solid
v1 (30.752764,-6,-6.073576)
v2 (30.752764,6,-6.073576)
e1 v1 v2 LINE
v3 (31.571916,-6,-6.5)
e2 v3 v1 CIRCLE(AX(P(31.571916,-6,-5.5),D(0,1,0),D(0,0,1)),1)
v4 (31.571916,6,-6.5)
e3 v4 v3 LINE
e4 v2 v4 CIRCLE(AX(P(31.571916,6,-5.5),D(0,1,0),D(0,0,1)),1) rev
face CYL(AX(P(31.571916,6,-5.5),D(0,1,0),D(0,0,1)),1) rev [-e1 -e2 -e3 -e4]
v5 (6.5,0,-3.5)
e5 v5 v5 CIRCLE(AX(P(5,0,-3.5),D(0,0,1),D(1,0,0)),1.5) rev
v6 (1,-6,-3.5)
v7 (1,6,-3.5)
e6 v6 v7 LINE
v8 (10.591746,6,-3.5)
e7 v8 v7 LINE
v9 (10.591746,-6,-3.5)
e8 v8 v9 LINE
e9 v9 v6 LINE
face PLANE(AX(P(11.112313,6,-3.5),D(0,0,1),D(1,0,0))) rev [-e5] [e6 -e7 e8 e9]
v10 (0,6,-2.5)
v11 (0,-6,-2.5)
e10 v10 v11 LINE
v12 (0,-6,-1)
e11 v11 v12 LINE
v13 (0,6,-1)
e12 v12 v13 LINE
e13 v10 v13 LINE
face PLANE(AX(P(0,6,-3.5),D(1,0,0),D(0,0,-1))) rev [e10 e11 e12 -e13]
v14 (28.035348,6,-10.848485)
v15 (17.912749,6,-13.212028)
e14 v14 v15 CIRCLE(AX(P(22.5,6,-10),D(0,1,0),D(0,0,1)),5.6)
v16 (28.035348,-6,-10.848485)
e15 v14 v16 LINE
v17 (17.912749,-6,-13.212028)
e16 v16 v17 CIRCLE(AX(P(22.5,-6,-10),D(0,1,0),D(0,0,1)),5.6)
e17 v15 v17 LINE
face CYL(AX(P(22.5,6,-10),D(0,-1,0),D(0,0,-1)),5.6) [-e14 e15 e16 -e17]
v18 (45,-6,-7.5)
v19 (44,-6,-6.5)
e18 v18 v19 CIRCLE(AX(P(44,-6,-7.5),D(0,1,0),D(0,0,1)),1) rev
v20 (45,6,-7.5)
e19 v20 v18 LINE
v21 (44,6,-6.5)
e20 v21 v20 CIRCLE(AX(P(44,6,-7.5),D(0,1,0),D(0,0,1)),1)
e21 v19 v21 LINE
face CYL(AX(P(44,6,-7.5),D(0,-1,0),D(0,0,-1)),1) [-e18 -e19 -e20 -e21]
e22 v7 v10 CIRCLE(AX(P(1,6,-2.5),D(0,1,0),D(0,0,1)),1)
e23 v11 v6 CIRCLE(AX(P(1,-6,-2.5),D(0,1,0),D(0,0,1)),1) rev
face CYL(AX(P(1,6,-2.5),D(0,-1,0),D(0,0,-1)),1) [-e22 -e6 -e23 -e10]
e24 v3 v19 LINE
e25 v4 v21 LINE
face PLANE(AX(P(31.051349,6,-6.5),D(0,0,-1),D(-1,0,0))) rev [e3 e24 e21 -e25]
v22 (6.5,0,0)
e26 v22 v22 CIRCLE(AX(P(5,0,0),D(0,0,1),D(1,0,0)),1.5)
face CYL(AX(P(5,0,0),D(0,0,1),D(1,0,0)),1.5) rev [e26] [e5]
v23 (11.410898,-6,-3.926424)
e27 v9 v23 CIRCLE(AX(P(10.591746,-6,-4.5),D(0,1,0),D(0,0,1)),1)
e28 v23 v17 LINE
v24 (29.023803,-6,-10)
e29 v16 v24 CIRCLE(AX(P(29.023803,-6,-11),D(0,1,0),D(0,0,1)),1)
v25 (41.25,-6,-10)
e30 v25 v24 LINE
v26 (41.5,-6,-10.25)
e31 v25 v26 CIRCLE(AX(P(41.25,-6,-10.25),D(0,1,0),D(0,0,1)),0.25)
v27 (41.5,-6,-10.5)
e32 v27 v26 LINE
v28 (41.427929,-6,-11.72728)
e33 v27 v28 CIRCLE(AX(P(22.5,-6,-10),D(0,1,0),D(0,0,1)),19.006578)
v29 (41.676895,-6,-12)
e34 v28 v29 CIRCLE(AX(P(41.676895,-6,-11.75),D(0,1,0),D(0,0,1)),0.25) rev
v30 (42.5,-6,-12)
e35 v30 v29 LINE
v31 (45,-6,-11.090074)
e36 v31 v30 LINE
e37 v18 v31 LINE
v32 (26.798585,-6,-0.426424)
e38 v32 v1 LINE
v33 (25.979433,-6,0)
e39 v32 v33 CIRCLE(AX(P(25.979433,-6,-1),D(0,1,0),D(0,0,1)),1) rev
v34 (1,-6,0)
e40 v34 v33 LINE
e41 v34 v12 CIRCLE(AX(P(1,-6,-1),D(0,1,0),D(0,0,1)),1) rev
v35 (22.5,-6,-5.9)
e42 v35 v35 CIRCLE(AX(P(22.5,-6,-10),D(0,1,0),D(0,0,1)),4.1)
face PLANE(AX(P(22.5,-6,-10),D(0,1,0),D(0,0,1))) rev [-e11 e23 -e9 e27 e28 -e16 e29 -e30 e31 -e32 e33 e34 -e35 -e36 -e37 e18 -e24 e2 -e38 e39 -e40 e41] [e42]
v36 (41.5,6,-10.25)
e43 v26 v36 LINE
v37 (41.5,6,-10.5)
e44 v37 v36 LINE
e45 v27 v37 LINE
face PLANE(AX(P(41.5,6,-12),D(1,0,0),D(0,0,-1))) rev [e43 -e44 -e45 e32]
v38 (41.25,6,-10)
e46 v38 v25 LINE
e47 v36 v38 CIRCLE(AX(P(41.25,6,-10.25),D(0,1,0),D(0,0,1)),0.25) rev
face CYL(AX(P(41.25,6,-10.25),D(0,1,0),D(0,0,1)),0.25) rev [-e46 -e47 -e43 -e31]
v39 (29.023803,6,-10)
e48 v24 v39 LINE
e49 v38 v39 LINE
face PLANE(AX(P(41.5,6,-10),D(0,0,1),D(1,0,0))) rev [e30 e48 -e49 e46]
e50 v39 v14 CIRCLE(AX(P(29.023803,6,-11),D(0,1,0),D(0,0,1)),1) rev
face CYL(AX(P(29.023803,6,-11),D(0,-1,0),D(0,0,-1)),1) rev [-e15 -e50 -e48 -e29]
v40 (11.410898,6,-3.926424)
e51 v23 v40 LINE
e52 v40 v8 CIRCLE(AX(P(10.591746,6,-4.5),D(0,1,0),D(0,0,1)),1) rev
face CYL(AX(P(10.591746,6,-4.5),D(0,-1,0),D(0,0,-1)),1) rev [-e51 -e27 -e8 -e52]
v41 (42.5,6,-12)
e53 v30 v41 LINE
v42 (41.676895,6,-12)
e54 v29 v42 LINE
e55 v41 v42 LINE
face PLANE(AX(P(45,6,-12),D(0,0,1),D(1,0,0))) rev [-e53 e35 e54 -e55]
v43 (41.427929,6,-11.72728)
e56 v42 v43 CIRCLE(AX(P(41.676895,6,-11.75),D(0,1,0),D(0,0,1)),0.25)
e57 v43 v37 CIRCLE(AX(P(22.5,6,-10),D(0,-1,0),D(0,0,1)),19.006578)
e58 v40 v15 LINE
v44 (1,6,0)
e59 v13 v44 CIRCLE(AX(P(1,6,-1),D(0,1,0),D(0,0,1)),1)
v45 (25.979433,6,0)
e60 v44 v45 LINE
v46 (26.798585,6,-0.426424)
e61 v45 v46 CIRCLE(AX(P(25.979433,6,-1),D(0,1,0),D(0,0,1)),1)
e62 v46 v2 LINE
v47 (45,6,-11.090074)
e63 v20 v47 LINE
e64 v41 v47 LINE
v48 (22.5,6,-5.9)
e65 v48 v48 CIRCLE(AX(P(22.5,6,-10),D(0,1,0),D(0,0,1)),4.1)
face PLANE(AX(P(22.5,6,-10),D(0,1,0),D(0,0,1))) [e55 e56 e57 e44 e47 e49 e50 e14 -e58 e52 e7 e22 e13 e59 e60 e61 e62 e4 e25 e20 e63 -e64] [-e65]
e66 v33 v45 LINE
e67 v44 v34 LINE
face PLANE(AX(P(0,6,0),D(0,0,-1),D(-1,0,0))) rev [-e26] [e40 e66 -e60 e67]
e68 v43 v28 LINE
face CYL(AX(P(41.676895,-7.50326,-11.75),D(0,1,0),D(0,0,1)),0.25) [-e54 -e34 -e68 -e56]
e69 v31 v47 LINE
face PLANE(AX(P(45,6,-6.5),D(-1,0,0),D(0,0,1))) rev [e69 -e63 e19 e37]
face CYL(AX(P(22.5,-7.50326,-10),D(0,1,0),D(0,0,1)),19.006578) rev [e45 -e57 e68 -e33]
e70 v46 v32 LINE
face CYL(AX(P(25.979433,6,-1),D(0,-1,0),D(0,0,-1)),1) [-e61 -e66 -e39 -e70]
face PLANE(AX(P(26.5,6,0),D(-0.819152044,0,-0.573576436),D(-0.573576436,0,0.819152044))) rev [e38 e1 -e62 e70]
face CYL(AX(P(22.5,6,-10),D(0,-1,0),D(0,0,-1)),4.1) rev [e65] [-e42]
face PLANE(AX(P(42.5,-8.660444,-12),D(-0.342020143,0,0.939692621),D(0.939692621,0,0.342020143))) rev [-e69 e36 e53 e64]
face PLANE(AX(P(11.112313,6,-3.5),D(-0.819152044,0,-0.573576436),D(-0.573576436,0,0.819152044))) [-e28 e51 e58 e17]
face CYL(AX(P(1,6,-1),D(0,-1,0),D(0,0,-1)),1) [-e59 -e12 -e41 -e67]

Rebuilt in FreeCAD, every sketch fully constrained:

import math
import FreeCAD as App
import Part
import Sketcher

V = App.Vector
Q = App.Units.Quantity


def edges_at(feature, points):
    """Names of the edges that pass closest to the given points."""
    edges = feature.Shape.Edges
    near = lambda p: min(range(len(edges)), key=lambda i: edges[i].distToShape(Part.Vertex(*p))[0])
    return sorted({f"Edge{near(p) + 1}" for p in points})

doc = App.newDocument("Part")
body = doc.addObject("PartDesign::Body", "Body")

sketch1 = body.newObject("Sketcher::SketchObject", "Sketch")
sketch1.AttachmentSupport = (doc.getObject("XZ_Plane"), [""])
sketch1.MapMode = "FlatFace"
sketch1.addGeometry(Part.LineSegment(V(0, 0, 0), V(26.5, 0, 0)), False)
sketch1.addGeometry(Part.LineSegment(V(26.5, 0, 0), V(31.1, -6.5, 0)), False)
sketch1.addGeometry(Part.LineSegment(V(31.1, -6.5, 0), V(45, -6.5, 0)), False)
sketch1.addGeometry(Part.LineSegment(V(45, -6.5, 0), V(45, -12, 0)), False)
sketch1.addGeometry(Part.LineSegment(V(45, -12, 0), V(41.5, -12, 0)), False)
sketch1.addGeometry(Part.LineSegment(V(41.5, -12, 0), V(41.5, -10, 0)), False)
sketch1.addGeometry(Part.LineSegment(V(41.5, -10, 0), V(28.1, -10, 0)), False)
sketch1.addGeometry(Part.ArcOfCircle(Part.Circle(V(22.5, -10, 0), V(0, 0, 1), 5.6), math.radians(-145), math.radians(0)), False)
sketch1.addGeometry(Part.LineSegment(V(17.9, -13.2, 0), V(11.1, -3.5, 0)), False)
sketch1.addGeometry(Part.LineSegment(V(11.1, -3.5, 0), V(0, -3.5, 0)), False)
sketch1.addGeometry(Part.LineSegment(V(0, -3.5, 0), V(0, 0, 0)), False)
sketch1.addGeometry(Part.Circle(V(22.5, -10, 0), V(0, 0, 1), 4.1), False)
sketch1.addConstraint(Sketcher.Constraint("Coincident", 0, 2, 1, 1))
sketch1.addConstraint(Sketcher.Constraint("Coincident", 1, 2, 2, 1))
sketch1.addConstraint(Sketcher.Constraint("Coincident", 2, 2, 3, 1))
sketch1.addConstraint(Sketcher.Constraint("Coincident", 3, 2, 4, 1))
sketch1.addConstraint(Sketcher.Constraint("Coincident", 4, 2, 5, 1))
sketch1.addConstraint(Sketcher.Constraint("Coincident", 5, 2, 6, 1))
sketch1.addConstraint(Sketcher.Constraint("Coincident", 6, 2, 7, 2))
sketch1.addConstraint(Sketcher.Constraint("Tangent", 7, 1, 8, 1))
sketch1.addConstraint(Sketcher.Constraint("Coincident", 8, 2, 9, 1))
sketch1.addConstraint(Sketcher.Constraint("Coincident", 9, 2, 10, 1))
sketch1.addConstraint(Sketcher.Constraint("Coincident", 10, 2, 0, 1))
sketch1.addConstraint(Sketcher.Constraint("Horizontal", 0))
sketch1.addConstraint(Sketcher.Constraint("Horizontal", 2))
sketch1.addConstraint(Sketcher.Constraint("Vertical", 3))
sketch1.addConstraint(Sketcher.Constraint("Horizontal", 4))
sketch1.addConstraint(Sketcher.Constraint("Vertical", 5))
sketch1.addConstraint(Sketcher.Constraint("Horizontal", 6))
sketch1.addConstraint(Sketcher.Constraint("Horizontal", 9))
sketch1.addConstraint(Sketcher.Constraint("Vertical", 10))
sketch1.addConstraint(Sketcher.Constraint("Coincident", 10, 2, -1, 1))
sketch1.addConstraint(Sketcher.Constraint("Coincident", 11, 3, 7, 3))
sketch1.addConstraint(Sketcher.Constraint("Parallel", 1, 8))
sketch1.addConstraint(Sketcher.Constraint("Horizontal", 11, 3, 5, 2))
sketch1.addConstraint(Sketcher.Constraint("Equal", 4, 10))
sketch1.addConstraint(Sketcher.Constraint("Diameter", 11, Q("8.2 mm")))
sketch1.addConstraint(Sketcher.Constraint("Radius", 7, Q("5.6 mm")))
sketch1.addConstraint(Sketcher.Constraint("DistanceY", 5, 1, 5, 2, Q("2 mm")))
sketch1.addConstraint(Sketcher.Constraint("Angle", 1, Q("-55 deg")))
sketch1.addConstraint(Sketcher.Constraint("DistanceX", 0, 1, 0, 2, Q("26.5 mm")))
sketch1.addConstraint(Sketcher.Constraint("DistanceX", 4, 2, 4, 1, Q("3.5 mm")))
sketch1.addConstraint(Sketcher.Constraint("DistanceX", 6, 2, 6, 1, Q("13.4 mm")))
sketch1.addConstraint(Sketcher.Constraint("DistanceY", 3, 2, 3, 1, Q("5.5 mm")))
sketch1.addConstraint(Sketcher.Constraint("DistanceY", 7, 3, -1, 1, Q("10 mm")))
sketch1.addConstraint(Sketcher.Constraint("DistanceX", -1, 1, 2, 2, Q("45 mm")))
pad1 = body.newObject("PartDesign::Pad", "Pad")
pad1.Profile = sketch1
pad1.Length = 12
pad1.Midplane = True

sketch2 = body.newObject("Sketcher::SketchObject", "Sketch001")
sketch2.AttachmentSupport = (doc.getObject("XY_Plane"), [""])
sketch2.MapMode = "FlatFace"
sketch2.addGeometry(Part.Circle(V(5, 0, 0), V(0, 0, 1), 1.5), False)
sketch2.addConstraint(Sketcher.Constraint("PointOnObject", 0, 3, -1))
sketch2.addConstraint(Sketcher.Constraint("Diameter", 0, Q("3 mm")))
sketch2.addConstraint(Sketcher.Constraint("DistanceX", -1, 1, 0, 3, Q("5 mm")))
doc.recompute()
hole = body.newObject("PartDesign::Hole", "Hole")
hole.Profile = sketch2
hole.ThreadType = "None"
hole.Diameter = 3
hole.DepthType = "ThroughAll"

sketch3 = body.newObject("Sketcher::SketchObject", "Sketch002")
sketch3.AttachmentSupport = (doc.getObject("XZ_Plane"), [""])
sketch3.MapMode = "FlatFace"
sketch3.AttachmentOffset = App.Placement(V(0, 0, -6), App.Rotation())
sketch3.addGeometry(Part.LineSegment(V(41.5, -10.5, 0), V(41.5, -12, 0)), False)
sketch3.addGeometry(Part.LineSegment(V(41.5, -12, 0), V(41.4, -12, 0)), False)
sketch3.addGeometry(Part.ArcOfCircle(Part.Circle(V(22.5, -10, 0), V(0, 0, 1), 19.01), math.radians(-6.04), math.radians(-1.51)), False)
sketch3.addConstraint(Sketcher.Constraint("Coincident", 0, 2, 1, 1))
sketch3.addConstraint(Sketcher.Constraint("Coincident", 1, 2, 2, 1))
sketch3.addConstraint(Sketcher.Constraint("Coincident", 2, 2, 0, 1))
sketch3.addConstraint(Sketcher.Constraint("Vertical", 0))
sketch3.addConstraint(Sketcher.Constraint("Horizontal", 1))
sketch3.addConstraint(Sketcher.Constraint("DistanceY", 0, 2, 0, 1, Q("1.5 mm")))
sketch3.addConstraint(Sketcher.Constraint("DistanceY", 2, 3, -1, 1, Q("10 mm")))
sketch3.addConstraint(Sketcher.Constraint("DistanceY", 0, 2, -1, 1, Q("12 mm")))
sketch3.addConstraint(Sketcher.Constraint("DistanceX", 2, 3, 0, 2, Q("19 mm")))
sketch3.addConstraint(Sketcher.Constraint("DistanceX", -1, 1, 2, 3, Q("22.5 mm")))
pad2 = body.newObject("PartDesign::Pad", "Pad001")
pad2.Profile = sketch3
pad2.Length = 12
doc.recompute()

fillet = body.newObject("PartDesign::Fillet", "Fillet")
fillet.Base = (pad2, edges_at(pad2, [(41.5, 0, -10), (41.401, 0, -12)]))
fillet.Radius = 0.25
doc.recompute()

fillet2 = body.newObject("PartDesign::Fillet", "Fillet001")
fillet2.Base = (fillet, edges_at(fillet, [
    (31.051, 0, -6.5),
    (26.5, 0, 0),
    (0, 0, 0),
    (0, 0, -3.5),
    (11.112, 0, -3.5),
    (28.1, 0, -10),
    (45, 0, -6.5),
]))
fillet2.Radius = 1

sketch4 = body.newObject("Sketcher::SketchObject", "Sketch003")
sketch4.AttachmentSupport = (doc.getObject("XZ_Plane"), [""])
sketch4.MapMode = "FlatFace"
sketch4.AttachmentOffset = App.Placement(V(0, 0, -6), App.Rotation())
sketch4.addGeometry(Part.LineSegment(V(45, -12, 0), V(42.5, -12, 0)), False)
sketch4.addGeometry(Part.LineSegment(V(42.5, -12, 0), V(45, -11.1, 0)), False)
sketch4.addGeometry(Part.LineSegment(V(45, -11.1, 0), V(45, -12, 0)), False)
sketch4.addConstraint(Sketcher.Constraint("Coincident", 0, 2, 1, 1))
sketch4.addConstraint(Sketcher.Constraint("Coincident", 1, 2, 2, 1))
sketch4.addConstraint(Sketcher.Constraint("Coincident", 2, 2, 0, 1))
sketch4.addConstraint(Sketcher.Constraint("Horizontal", 0))
sketch4.addConstraint(Sketcher.Constraint("Vertical", 2))
sketch4.addConstraint(Sketcher.Constraint("Angle", 1, Q("20 deg")))
sketch4.addConstraint(Sketcher.Constraint("DistanceX", 0, 2, 0, 1, Q("2.5 mm")))
sketch4.addConstraint(Sketcher.Constraint("DistanceY", 0, 2, -1, 1, Q("12 mm")))
sketch4.addConstraint(Sketcher.Constraint("DistanceX", -1, 1, 1, 2, Q("45 mm")))
pocket1 = body.newObject("PartDesign::Pocket", "Pocket")
pocket1.Profile = sketch4
pocket1.Length = 12
pocket1.Reversed = True

doc.recompute()
